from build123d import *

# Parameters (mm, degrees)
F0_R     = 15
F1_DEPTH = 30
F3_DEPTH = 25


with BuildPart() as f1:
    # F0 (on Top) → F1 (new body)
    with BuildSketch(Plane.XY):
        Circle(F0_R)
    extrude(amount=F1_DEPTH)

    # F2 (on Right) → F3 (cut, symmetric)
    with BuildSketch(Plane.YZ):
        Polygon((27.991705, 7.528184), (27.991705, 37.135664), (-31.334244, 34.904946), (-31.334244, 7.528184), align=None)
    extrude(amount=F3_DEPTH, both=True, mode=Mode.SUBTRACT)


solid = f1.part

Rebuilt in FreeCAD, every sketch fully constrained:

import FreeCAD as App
import Part
import Sketcher
Q = App.Units.Quantity


def add_polygon(sketch, points):
    """Adds a closed chain of lines whose ends are joined by coincident constraints."""
    first, n = sketch.GeometryCount, len(points)
    for a, b in zip(points, points[1:] + points[:1]):
        sketch.addGeometry(Part.LineSegment(App.Vector(*a, 0), App.Vector(*b, 0)), False)
    for i in range(n):
        sketch.addConstraint(Sketcher.Constraint("Coincident", first + i, 2, first + (i + 1) % n, 1))

doc = App.newDocument("Part")
body = doc.addObject("PartDesign::Body", "Body")

sketch1 = doc.addObject("Sketcher::SketchObject", "Sketch")
body.addObject(sketch1)
sketch1.AttachmentSupport = (doc.XY_Plane, [""])
sketch1.MapMode = "FlatFace"
sketch1.addGeometry(Part.Circle(App.Vector(0, 0, 0), App.Vector(0, 0, 1), 15), False)
sketch1.addConstraint([
    Sketcher.Constraint("Coincident", 0, 3, -1, 1),
    Sketcher.Constraint("Diameter", 0, Q("30 mm")),
])
pad1 = doc.addObject("PartDesign::Pad", "Pad")
body.addObject(pad1)
pad1.Profile = sketch1
pad1.Length = 30

sketch2 = doc.addObject("Sketcher::SketchObject", "Sketch001")
body.addObject(sketch2)
sketch2.AttachmentSupport = (doc.YZ_Plane, [""])
sketch2.MapMode = "FlatFace"
add_polygon(sketch2, [(27.991705, 7.528184), (27.991705, 37.135664), (-31.334244, 34.904946), (-31.334244, 7.528184)])
sketch2.addConstraint([
    Sketcher.Constraint("Vertical", 0),
    Sketcher.Constraint("Vertical", 2),
    Sketcher.Constraint("Horizontal", 3),
    Sketcher.Constraint("DistanceX", 3, 1, 3, 2, Q("59.325949 mm")),
    Sketcher.Constraint("DistanceY", 0, 1, 0, 2, Q("29.60748 mm")),
    Sketcher.Constraint("DistanceY", 2, 2, 2, 1, Q("27.376762 mm")),
    Sketcher.Constraint("DistanceX", -1, 1, 0, 2, Q("27.991705 mm")),
    Sketcher.Constraint("DistanceY", -1, 1, 0, 2, Q("37.135664 mm")),
])
pocket1 = doc.addObject("PartDesign::Pocket", "Pocket")
body.addObject(pocket1)
pocket1.Profile = sketch2
pocket1.Length = 50
pocket1.Midplane = True

doc.recompute()
